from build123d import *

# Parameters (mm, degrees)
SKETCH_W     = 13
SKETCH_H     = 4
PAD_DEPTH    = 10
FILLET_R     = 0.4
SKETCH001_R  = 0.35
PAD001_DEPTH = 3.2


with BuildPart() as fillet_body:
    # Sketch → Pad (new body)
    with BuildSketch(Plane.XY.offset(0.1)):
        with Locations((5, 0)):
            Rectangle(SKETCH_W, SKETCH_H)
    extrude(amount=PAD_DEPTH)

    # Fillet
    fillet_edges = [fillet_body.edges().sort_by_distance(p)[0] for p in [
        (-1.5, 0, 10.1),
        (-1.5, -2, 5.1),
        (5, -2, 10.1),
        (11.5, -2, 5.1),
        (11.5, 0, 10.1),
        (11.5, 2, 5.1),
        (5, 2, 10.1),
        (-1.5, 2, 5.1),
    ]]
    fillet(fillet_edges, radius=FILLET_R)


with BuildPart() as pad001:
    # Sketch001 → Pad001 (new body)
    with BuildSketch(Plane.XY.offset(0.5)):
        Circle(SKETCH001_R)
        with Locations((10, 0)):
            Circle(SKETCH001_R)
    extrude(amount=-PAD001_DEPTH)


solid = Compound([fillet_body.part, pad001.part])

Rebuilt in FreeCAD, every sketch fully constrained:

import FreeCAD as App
import Part
import Sketcher

V = App.Vector
Q = App.Units.Quantity


def edges_at(feature, points):
    """Names of the edges that pass closest to the given points."""
    edges = feature.Shape.Edges
    near = lambda p: min(range(len(edges)), key=lambda i: edges[i].distToShape(Part.Vertex(*p))[0])
    return sorted({f"Edge{near(p) + 1}" for p in points})

doc = App.newDocument("Part")
body = doc.addObject("PartDesign::Body", "Body")

# Sketch on XY plane
sketch1 = body.newObject("Sketcher::SketchObject", "Sketch")
sketch1.AttachmentSupport = (doc.getObject("XY_Plane"), [""])
sketch1.MapMode = "FlatFace"
sketch1.AttachmentOffset = App.Placement(V(0, 0, 0.1), App.Rotation())
sketch1.addGeometry([
    Part.LineSegment(V(-1.5, 2, 0), V(-1.5, -2, 0)),
    Part.LineSegment(V(-1.5, -2, 0), V(11.5, -2, 0)),
    Part.LineSegment(V(11.5, -2, 0), V(11.5, 2, 0)),
    Part.LineSegment(V(11.5, 2, 0), V(-1.5, 2, 0)),
], False)
sketch1.addConstraint([
    Sketcher.Constraint("Coincident", 0, 2, 1, 1),
    Sketcher.Constraint("Coincident", 1, 2, 2, 1),
    Sketcher.Constraint("Coincident", 2, 2, 3, 1),
    Sketcher.Constraint("Coincident", 3, 2, 0, 1),
    Sketcher.Constraint("Vertical", 0),
    Sketcher.Constraint("Horizontal", 1),
    Sketcher.Constraint("Vertical", 2),
    Sketcher.Constraint("Horizontal", 3),
    Sketcher.Constraint("DistanceX", 1, 1, 1, 2, Q("13 mm")),
    Sketcher.Constraint("DistanceY", 0, 2, 0, 1, Q("4 mm")),
    Sketcher.Constraint("DistanceY", 0, 2, -1, 1, Q("2 mm")),
    Sketcher.Constraint("DistanceX", 0, 2, -1, 1, Q("1.5 mm")),
])
pad1 = body.newObject("PartDesign::Pad", "Pad")
pad1.Profile = sketch1
pad1.Length = 10
doc.recompute()

fillet = body.newObject("PartDesign::Fillet", "Fillet")
fillet.Base = (pad1, edges_at(pad1, [
    (-1.5, 0, 10.1),
    (-1.5, -2, 5.1),
    (5, -2, 10.1),
    (11.5, -2, 5.1),
    (11.5, 0, 10.1),
    (11.5, 2, 5.1),
    (5, 2, 10.1),
    (-1.5, 2, 5.1),
]))
fillet.Radius = 0.4
body2 = doc.addObject("PartDesign::Body", "Body001")
body2.AllowCompound = True

# Sketch on XY plane
sketch2 = body2.newObject("Sketcher::SketchObject", "Sketch001")
sketch2.AttachmentSupport = (doc.getObject("XY_Plane001"), [""])
sketch2.MapMode = "FlatFace"
sketch2.AttachmentOffset = App.Placement(V(0, 0, 0.5), App.Rotation())
sketch2.addGeometry([
    Part.Circle(V(0, 0, 0), V(0, 0, 1), 0.35),
    Part.Circle(V(10, 0, 0), V(0, 0, 1), 0.35),
], False)
sketch2.addConstraint([
    Sketcher.Constraint("Coincident", 0, 3, -1, 1),
    Sketcher.Constraint("Equal", 0, 1),
    Sketcher.Constraint("PointOnObject", 1, 3, -1),
    Sketcher.Constraint("Diameter", 0, Q("0.7 mm")),
    Sketcher.Constraint("DistanceX", -1, 1, 1, 3, Q("10 mm")),
])
pad2 = body2.newObject("PartDesign::Pad", "Pad001")
pad2.Profile = sketch2
pad2.Length = 3.2
pad2.Reversed = True

doc.recompute()
